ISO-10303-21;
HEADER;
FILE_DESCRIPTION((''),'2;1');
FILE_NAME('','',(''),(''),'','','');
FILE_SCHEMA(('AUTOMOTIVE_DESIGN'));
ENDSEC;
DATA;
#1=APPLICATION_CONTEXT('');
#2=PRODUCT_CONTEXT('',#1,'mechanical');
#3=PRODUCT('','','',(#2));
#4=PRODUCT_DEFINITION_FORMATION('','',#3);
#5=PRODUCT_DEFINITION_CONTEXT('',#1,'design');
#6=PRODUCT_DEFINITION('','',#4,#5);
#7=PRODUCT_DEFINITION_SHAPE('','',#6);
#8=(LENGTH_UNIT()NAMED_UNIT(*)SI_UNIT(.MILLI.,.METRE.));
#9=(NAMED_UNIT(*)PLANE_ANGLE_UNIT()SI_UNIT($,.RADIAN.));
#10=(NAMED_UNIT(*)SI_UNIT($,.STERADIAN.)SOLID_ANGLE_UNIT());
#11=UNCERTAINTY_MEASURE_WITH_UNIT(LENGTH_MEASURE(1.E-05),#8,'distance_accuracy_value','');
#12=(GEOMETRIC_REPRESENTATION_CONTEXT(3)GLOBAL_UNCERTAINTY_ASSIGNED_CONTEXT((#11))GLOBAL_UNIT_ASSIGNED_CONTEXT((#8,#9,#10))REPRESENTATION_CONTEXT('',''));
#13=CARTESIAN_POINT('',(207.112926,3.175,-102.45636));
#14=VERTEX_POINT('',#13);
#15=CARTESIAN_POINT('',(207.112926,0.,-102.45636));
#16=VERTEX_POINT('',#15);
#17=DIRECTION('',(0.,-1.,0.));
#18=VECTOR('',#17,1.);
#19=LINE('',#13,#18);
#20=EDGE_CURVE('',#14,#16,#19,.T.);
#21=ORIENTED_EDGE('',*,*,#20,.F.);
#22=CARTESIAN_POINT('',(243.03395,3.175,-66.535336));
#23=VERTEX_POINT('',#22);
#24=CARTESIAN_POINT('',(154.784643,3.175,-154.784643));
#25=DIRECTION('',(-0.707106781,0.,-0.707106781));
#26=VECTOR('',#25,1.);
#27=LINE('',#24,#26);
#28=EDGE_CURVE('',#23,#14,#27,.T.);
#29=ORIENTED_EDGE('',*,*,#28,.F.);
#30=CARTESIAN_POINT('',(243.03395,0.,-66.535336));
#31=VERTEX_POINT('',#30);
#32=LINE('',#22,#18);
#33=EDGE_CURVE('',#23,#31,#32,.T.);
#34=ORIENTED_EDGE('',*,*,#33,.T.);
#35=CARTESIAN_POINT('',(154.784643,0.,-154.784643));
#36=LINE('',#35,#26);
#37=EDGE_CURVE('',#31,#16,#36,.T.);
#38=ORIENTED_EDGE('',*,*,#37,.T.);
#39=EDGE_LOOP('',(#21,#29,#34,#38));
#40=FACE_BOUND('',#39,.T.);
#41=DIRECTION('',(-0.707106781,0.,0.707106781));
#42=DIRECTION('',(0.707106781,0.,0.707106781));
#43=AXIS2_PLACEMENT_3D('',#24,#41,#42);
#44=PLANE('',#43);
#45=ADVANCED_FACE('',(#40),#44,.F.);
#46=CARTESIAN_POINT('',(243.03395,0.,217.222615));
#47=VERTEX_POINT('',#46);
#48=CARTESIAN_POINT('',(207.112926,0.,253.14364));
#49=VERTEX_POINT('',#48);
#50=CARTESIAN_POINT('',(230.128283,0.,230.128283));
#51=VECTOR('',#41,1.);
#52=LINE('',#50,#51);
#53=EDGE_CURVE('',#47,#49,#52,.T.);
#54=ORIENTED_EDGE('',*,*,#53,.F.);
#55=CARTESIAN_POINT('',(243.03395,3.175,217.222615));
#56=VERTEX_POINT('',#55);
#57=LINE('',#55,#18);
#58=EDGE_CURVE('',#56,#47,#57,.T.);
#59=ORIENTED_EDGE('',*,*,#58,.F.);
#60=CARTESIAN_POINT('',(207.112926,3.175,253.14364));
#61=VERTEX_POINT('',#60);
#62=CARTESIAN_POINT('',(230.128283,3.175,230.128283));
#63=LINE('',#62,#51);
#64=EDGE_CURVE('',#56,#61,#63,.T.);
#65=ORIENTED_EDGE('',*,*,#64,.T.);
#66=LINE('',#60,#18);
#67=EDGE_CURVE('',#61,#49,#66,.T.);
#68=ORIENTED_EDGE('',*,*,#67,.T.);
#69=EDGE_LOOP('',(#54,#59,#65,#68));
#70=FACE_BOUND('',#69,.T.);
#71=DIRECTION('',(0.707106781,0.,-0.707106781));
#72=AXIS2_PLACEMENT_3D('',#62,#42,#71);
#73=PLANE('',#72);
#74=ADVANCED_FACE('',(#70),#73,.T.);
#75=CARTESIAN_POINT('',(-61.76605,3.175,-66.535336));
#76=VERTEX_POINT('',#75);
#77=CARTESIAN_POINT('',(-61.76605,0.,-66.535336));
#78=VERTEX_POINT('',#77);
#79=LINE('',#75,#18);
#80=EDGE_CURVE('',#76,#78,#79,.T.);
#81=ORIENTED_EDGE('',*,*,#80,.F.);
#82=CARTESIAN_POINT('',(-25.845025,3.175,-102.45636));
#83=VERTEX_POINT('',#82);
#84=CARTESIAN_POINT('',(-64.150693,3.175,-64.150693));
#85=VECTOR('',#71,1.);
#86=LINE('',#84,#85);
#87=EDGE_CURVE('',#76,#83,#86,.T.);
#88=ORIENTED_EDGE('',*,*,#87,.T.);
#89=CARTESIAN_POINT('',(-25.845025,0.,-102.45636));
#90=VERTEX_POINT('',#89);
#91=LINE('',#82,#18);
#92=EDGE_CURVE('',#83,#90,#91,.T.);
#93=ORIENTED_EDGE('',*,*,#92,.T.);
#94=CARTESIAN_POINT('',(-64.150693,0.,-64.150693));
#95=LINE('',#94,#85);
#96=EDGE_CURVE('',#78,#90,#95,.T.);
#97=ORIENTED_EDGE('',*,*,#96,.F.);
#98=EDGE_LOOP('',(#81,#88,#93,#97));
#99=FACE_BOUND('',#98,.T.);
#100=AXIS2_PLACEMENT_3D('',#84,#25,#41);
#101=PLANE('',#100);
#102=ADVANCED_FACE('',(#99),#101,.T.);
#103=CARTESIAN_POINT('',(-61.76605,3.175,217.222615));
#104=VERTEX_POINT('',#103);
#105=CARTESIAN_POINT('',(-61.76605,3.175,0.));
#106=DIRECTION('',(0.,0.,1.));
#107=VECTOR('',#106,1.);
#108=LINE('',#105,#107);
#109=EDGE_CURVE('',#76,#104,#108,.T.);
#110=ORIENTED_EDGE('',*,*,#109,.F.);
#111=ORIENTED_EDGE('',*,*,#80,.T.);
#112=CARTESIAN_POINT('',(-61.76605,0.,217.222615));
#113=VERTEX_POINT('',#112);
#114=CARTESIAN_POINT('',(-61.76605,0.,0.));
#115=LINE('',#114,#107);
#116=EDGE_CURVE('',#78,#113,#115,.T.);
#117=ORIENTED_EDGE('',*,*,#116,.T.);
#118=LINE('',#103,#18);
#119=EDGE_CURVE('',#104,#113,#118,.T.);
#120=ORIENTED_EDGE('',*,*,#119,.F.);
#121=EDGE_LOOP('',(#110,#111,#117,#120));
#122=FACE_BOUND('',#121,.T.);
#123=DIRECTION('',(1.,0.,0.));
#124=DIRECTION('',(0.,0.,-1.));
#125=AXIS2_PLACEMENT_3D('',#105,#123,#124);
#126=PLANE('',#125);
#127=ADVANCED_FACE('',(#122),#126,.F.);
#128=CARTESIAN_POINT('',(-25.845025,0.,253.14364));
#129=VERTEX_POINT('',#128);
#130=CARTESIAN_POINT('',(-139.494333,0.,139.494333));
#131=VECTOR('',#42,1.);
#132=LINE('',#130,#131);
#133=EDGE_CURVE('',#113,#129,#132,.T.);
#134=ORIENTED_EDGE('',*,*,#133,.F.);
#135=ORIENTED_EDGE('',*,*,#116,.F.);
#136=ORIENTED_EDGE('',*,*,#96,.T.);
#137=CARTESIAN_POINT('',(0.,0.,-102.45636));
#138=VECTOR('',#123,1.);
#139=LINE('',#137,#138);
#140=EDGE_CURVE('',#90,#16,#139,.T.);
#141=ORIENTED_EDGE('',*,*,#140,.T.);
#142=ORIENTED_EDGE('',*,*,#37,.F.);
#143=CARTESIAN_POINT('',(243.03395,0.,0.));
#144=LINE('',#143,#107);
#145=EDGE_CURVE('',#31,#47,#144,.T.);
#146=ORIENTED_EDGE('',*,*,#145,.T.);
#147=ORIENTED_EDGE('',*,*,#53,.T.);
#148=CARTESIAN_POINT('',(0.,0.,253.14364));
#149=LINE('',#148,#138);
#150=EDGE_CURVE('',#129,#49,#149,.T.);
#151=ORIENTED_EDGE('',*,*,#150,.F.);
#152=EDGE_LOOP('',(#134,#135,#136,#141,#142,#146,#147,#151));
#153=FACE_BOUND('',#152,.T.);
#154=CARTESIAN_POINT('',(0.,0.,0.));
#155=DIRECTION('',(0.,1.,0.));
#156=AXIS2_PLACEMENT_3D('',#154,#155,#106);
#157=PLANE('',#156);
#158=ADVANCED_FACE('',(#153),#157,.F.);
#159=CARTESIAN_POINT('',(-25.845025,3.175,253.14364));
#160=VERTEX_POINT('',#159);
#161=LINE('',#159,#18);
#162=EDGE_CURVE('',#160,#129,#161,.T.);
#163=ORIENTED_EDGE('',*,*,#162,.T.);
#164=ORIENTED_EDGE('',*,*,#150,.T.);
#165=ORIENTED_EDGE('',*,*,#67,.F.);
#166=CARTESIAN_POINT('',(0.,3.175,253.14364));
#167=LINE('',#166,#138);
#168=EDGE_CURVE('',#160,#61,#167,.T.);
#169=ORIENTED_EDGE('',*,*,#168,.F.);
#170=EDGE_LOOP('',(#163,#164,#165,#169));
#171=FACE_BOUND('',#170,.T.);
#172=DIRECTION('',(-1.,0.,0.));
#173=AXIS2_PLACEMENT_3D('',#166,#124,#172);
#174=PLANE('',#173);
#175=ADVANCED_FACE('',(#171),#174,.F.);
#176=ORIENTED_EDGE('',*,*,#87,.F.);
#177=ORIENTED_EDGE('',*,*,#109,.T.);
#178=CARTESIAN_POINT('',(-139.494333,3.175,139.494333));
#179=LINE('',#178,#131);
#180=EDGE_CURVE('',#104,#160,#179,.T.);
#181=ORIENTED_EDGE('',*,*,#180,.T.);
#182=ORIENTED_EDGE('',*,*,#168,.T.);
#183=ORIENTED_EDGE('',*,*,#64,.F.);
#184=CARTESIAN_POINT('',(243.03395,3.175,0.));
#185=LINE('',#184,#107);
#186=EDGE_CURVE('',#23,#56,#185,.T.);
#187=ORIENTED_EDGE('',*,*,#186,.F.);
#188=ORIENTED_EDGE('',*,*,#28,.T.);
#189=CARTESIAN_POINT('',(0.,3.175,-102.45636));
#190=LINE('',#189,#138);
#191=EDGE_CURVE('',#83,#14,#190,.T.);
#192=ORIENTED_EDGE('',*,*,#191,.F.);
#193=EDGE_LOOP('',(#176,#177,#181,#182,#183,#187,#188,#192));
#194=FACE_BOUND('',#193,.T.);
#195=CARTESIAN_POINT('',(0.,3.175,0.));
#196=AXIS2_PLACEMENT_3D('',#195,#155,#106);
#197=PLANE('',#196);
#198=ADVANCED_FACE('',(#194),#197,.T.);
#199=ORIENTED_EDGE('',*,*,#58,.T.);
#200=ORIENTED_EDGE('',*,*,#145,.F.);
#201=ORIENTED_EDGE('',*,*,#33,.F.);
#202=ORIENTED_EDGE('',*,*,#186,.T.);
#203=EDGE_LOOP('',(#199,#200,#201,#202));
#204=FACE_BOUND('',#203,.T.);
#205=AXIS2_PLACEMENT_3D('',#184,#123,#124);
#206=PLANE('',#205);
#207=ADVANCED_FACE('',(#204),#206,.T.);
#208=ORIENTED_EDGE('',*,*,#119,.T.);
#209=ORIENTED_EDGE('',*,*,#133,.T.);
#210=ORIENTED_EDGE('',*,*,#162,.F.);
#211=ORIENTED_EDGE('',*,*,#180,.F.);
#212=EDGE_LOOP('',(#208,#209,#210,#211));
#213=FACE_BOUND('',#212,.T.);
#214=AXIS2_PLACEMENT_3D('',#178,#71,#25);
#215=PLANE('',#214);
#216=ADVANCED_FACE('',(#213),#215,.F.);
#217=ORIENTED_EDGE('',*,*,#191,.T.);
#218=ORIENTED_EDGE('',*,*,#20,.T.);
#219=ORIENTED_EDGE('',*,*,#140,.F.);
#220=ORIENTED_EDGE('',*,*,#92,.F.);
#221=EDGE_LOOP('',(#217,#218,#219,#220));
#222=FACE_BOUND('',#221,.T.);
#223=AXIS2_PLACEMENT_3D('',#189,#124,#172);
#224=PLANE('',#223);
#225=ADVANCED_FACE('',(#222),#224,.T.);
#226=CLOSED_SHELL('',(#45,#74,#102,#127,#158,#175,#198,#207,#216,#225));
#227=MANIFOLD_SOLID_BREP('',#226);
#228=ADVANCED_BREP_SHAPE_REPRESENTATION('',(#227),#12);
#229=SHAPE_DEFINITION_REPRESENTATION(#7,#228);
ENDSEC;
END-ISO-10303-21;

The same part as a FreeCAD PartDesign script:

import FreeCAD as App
import Part
import Sketcher

V = App.Vector
Q = App.Units.Quantity

doc = App.newDocument("Part")
body = doc.addObject("PartDesign::Body", "Body")

# Sketch on XZ plane
sketch1 = body.newObject("Sketcher::SketchObject", "Sketch")
sketch1.AttachmentSupport = (doc.getObject("XZ_Plane"), [""])
sketch1.MapMode = "FlatFace"
sketch1.addGeometry(Part.LineSegment(V(-26, -102, 0), V(-62, -67, 0)), False)
sketch1.addGeometry(Part.LineSegment(V(-62, -67, 0), V(-62, 217, 0)), False)
sketch1.addGeometry(Part.LineSegment(V(-62, 217, 0), V(-26, 253, 0)), False)
sketch1.addGeometry(Part.LineSegment(V(-26, 253, 0), V(207, 253, 0)), False)
sketch1.addGeometry(Part.LineSegment(V(207, 253, 0), V(243, 217, 0)), False)
sketch1.addGeometry(Part.LineSegment(V(243, 217, 0), V(243, -67, 0)), False)
sketch1.addGeometry(Part.LineSegment(V(243, -67, 0), V(207, -102, 0)), False)
sketch1.addGeometry(Part.LineSegment(V(207, -102, 0), V(-26, -102, 0)), False)
sketch1.addConstraint(Sketcher.Constraint("Coincident", 0, 2, 1, 1))
sketch1.addConstraint(Sketcher.Constraint("Coincident", 1, 2, 2, 1))
sketch1.addConstraint(Sketcher.Constraint("Coincident", 2, 2, 3, 1))
sketch1.addConstraint(Sketcher.Constraint("Coincident", 3, 2, 4, 1))
sketch1.addConstraint(Sketcher.Constraint("Coincident", 4, 2, 5, 1))
sketch1.addConstraint(Sketcher.Constraint("Coincident", 5, 2, 6, 1))
sketch1.addConstraint(Sketcher.Constraint("Coincident", 6, 2, 7, 1))
sketch1.addConstraint(Sketcher.Constraint("Coincident", 7, 2, 0, 1))
sketch1.addConstraint(Sketcher.Constraint("Vertical", 1))
sketch1.addConstraint(Sketcher.Constraint("Horizontal", 3))
sketch1.addConstraint(Sketcher.Constraint("Vertical", 5))
sketch1.addConstraint(Sketcher.Constraint("Horizontal", 7))
sketch1.addConstraint(Sketcher.Constraint("Perpendicular", 0, 2))
sketch1.addConstraint(Sketcher.Constraint("Perpendicular", 2, 4))
sketch1.addConstraint(Sketcher.Constraint("Perpendicular", 4, 6))
sketch1.addConstraint(Sketcher.Constraint("Horizontal", 1, 2, 4, 2))
sketch1.addConstraint(Sketcher.Constraint("Horizontal", 0, 2, 5, 2))
sketch1.addConstraint(Sketcher.Constraint("Vertical", 3, 2, 6, 2))
sketch1.addConstraint(Sketcher.Constraint("Vertical", 2, 2, 7, 2))
sketch1.addConstraint(Sketcher.Constraint("Distance", 0, Q("2 in")))
sketch1.addConstraint(Sketcher.Constraint("DistanceX", 1, 2, 4, 2, Q("12 in")))
sketch1.addConstraint(Sketcher.Constraint("DistanceY", 6, 2, 3, 2, Q("14 in")))
sketch1.addConstraint(Sketcher.Constraint("DistanceX", 0, 2, -1, 1, Q("61.76605 mm")))
sketch1.addConstraint(Sketcher.Constraint("DistanceY", -1, 1, 2, 2, Q("253.14364 mm")))
pad1 = body.newObject("PartDesign::Pad", "Pad")
pad1.Profile = sketch1
pad1.Length = Q("0.125 in")
pad1.Reversed = True

doc.recompute()
